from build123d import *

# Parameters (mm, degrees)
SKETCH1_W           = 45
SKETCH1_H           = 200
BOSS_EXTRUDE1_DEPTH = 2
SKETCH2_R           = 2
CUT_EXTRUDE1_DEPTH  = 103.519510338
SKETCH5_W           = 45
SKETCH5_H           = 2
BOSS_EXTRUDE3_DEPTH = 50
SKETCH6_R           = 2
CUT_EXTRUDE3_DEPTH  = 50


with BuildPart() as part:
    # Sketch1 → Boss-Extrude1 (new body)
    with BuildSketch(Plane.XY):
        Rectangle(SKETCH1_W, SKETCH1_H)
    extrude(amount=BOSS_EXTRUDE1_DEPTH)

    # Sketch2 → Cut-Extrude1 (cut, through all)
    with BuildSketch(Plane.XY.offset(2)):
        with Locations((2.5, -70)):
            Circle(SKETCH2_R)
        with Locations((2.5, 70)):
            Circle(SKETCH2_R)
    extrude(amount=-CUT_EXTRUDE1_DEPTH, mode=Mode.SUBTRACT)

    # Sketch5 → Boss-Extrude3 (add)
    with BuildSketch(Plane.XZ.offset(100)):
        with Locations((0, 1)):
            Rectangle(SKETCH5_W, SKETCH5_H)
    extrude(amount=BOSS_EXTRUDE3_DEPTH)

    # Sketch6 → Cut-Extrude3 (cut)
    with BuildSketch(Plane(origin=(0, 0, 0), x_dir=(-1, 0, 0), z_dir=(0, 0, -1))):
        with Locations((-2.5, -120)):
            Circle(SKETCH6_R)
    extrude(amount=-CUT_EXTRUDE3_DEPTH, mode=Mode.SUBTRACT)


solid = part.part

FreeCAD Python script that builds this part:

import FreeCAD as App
import Part
import Sketcher
from FreeCAD import Vector
Q = App.Units.Quantity


def add_polygon(sketch, points):
    """Adds a closed chain of lines whose ends are joined by coincident constraints."""
    first, n = sketch.GeometryCount, len(points)
    for a, b in zip(points, points[1:] + points[:1]):
        sketch.addGeometry(Part.LineSegment(App.Vector(*a, 0), App.Vector(*b, 0)), False)
    for i in range(n):
        sketch.addConstraint(Sketcher.Constraint("Coincident", first + i, 2, first + (i + 1) % n, 1))

doc = App.newDocument("Part")
body = doc.addObject("PartDesign::Body", "Body")

# Sketch on XY plane
sketch1 = body.newObject("Sketcher::SketchObject", "Sketch")
sketch1.AttachmentSupport = (doc.getObject("XY_Plane"), [""])
sketch1.MapMode = "FlatFace"
add_polygon(sketch1, [(-22.5, 100), (-22.5, -100), (22.5, -100), (22.5, 100)])  # lines 0-3
sketch1.addConstraint(Sketcher.Constraint("Vertical", 0))
sketch1.addConstraint(Sketcher.Constraint("Horizontal", 1))
sketch1.addConstraint(Sketcher.Constraint("Vertical", 2))
sketch1.addConstraint(Sketcher.Constraint("Horizontal", 3))
sketch1.addConstraint(Sketcher.Constraint("Symmetric", 0, 2, 2, 2, -1, 1))
sketch1.addConstraint(Sketcher.Constraint("DistanceX", 1, 1, 1, 2, Q("45 mm")))
sketch1.addConstraint(Sketcher.Constraint("DistanceY", 0, 2, 0, 1, Q("200 mm")))
pad1 = body.newObject("PartDesign::Pad", "Pad")
pad1.Profile = sketch1
pad1.Length = 2

# Sketch on XY plane
sketch2 = body.newObject("Sketcher::SketchObject", "Sketch001")
sketch2.AttachmentSupport = (doc.getObject("XY_Plane"), [""])
sketch2.MapMode = "FlatFace"
sketch2.AttachmentOffset = App.Placement(Vector(0, 0, 2), App.Rotation())
sketch2.addGeometry(Part.Circle(Vector(2.5, -70, 0), Vector(0, 0, 1), 2), False)
sketch2.addGeometry(Part.Circle(Vector(2.5, 70, 0), Vector(0, 0, 1), 2), False)
sketch2.addConstraint(Sketcher.Constraint("Equal", 0, 1))
sketch2.addConstraint(Sketcher.Constraint("Symmetric", 0, 3, 1, 3, -1))
sketch2.addConstraint(Sketcher.Constraint("Diameter", 0, Q("4 mm")))
sketch2.addConstraint(Sketcher.Constraint("DistanceY", 0, 3, -1, 1, Q("70 mm")))
sketch2.addConstraint(Sketcher.Constraint("DistanceX", -1, 1, 0, 3, Q("2.5 mm")))
pocket1 = body.newObject("PartDesign::Pocket", "Pocket")
pocket1.Profile = sketch2
pocket1.Type = "ThroughAll"

# Sketch on XZ plane
sketch3 = body.newObject("Sketcher::SketchObject", "Sketch002")
sketch3.AttachmentSupport = (doc.getObject("XZ_Plane"), [""])
sketch3.MapMode = "FlatFace"
sketch3.AttachmentOffset = App.Placement(Vector(0, 0, 100), App.Rotation())
add_polygon(sketch3, [(-22.5, 2), (-22.5, 0), (22.5, 0), (22.5, 2)])  # lines 0-3
sketch3.addConstraint(Sketcher.Constraint("Vertical", 0))
sketch3.addConstraint(Sketcher.Constraint("Horizontal", 1))
sketch3.addConstraint(Sketcher.Constraint("Vertical", 2))
sketch3.addConstraint(Sketcher.Constraint("Horizontal", 3))
sketch3.addConstraint(Sketcher.Constraint("Symmetric", 0, 2, 1, 2, -1, 1))
sketch3.addConstraint(Sketcher.Constraint("DistanceX", 1, 1, 1, 2, Q("45 mm")))
sketch3.addConstraint(Sketcher.Constraint("DistanceY", 0, 2, 0, 1, Q("2 mm")))
pad2 = body.newObject("PartDesign::Pad", "Pad001")
pad2.Profile = sketch3
pad2.Length = 50

# Sketch on XY plane
sketch4 = body.newObject("Sketcher::SketchObject", "Sketch003")
sketch4.AttachmentSupport = (doc.getObject("XY_Plane"), [""])
sketch4.MapMode = "FlatFace"
sketch4.addGeometry(Part.Circle(Vector(2.5, -120, 0), Vector(0, 0, 1), 2), False)
sketch4.addConstraint(Sketcher.Constraint("Diameter", 0, Q("4 mm")))
sketch4.addConstraint(Sketcher.Constraint("DistanceY", 0, 3, -1, 1, Q("120 mm")))
sketch4.addConstraint(Sketcher.Constraint("DistanceX", -1, 1, 0, 3, Q("2.5 mm")))
pocket2 = body.newObject("PartDesign::Pocket", "Pocket001")
pocket2.Profile = sketch4
pocket2.Length = 50
pocket2.Reversed = True

doc.recompute()
